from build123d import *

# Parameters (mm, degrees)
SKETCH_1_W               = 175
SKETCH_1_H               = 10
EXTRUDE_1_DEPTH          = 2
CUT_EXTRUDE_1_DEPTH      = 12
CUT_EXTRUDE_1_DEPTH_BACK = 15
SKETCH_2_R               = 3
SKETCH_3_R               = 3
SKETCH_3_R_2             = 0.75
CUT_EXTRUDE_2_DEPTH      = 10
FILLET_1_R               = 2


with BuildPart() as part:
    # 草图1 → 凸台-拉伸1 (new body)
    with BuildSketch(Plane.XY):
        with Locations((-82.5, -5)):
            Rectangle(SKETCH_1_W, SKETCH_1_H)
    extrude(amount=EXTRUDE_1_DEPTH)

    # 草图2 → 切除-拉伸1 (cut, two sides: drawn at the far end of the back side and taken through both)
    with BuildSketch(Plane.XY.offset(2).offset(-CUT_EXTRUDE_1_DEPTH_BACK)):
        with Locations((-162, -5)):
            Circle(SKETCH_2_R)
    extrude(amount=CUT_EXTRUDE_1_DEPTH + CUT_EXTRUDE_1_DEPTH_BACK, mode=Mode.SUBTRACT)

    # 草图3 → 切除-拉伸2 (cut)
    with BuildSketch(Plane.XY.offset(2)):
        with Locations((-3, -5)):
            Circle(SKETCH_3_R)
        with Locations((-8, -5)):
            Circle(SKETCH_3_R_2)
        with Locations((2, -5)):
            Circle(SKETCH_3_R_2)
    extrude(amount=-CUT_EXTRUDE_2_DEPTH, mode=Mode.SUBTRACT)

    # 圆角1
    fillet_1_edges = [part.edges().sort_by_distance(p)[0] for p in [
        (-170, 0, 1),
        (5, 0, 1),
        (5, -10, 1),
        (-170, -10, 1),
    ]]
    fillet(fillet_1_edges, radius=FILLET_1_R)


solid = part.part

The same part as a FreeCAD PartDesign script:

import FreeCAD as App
import Part
import Sketcher
from FreeCAD import Vector


def edges_at(feature, points):
    """Names of the edges that pass closest to the given points."""
    edges = feature.Shape.Edges
    near = lambda p: min(range(len(edges)), key=lambda i: edges[i].distToShape(Part.Vertex(*p))[0])
    return sorted({f"Edge{near(p) + 1}" for p in points})


def add_polygon(sketch, points):
    """Adds a closed chain of lines whose ends are joined by coincident constraints."""
    first, n = sketch.GeometryCount, len(points)
    for a, b in zip(points, points[1:] + points[:1]):
        sketch.addGeometry(Part.LineSegment(App.Vector(*a, 0), App.Vector(*b, 0)), False)
    for i in range(n):
        sketch.addConstraint(Sketcher.Constraint("Coincident", first + i, 2, first + (i + 1) % n, 1))

doc = App.newDocument("Part")
body = doc.addObject("PartDesign::Body", "Body")

# Sketch on XY plane
sketch1 = body.newObject("Sketcher::SketchObject", "Sketch")
sketch1.AttachmentSupport = (doc.getObject("XY_Plane"), [""])
sketch1.MapMode = "FlatFace"
add_polygon(sketch1, [(-170, 0), (-170, -10), (5, -10), (5, 0)])  # lines 0-3
sketch1.addConstraint([
    Sketcher.Constraint("Vertical", 0),
    Sketcher.Constraint("Horizontal", 1),
    Sketcher.Constraint("Vertical", 2),
    Sketcher.Constraint("Horizontal", 3),
    Sketcher.Constraint("PointOnObject", 2, 2, -1),
    Sketcher.Constraint("DistanceX", 1, 1, 1, 2, 175.0),
    Sketcher.Constraint("DistanceY", 0, 2, 0, 1, 10.0),
    Sketcher.Constraint("DistanceX", 0, 2, -1, 1, 170.0),
])
pad1 = body.newObject("PartDesign::Pad", "Pad")
pad1.Profile = sketch1
pad1.Length = 2

# Sketch on XY plane
sketch2 = body.newObject("Sketcher::SketchObject", "Sketch001")
sketch2.AttachmentSupport = (doc.getObject("XY_Plane"), [""])
sketch2.MapMode = "FlatFace"
sketch2.AttachmentOffset = App.Placement(Vector(0, 0, 2), App.Rotation())
sketch2.addGeometry(Part.Circle(Vector(-162, -5, 0), Vector(0, 0, 1), 3), False)
sketch2.addConstraint([
    Sketcher.Constraint("Diameter", 0, 6.0),
    Sketcher.Constraint("DistanceX", 0, 3, -1, 1, 162.0),
    Sketcher.Constraint("DistanceY", 0, 3, -1, 1, 5.0),
])
pocket1 = body.newObject("PartDesign::Pocket", "Pocket")
pocket1.Profile = sketch2
pocket1.Type = "ThroughAll"
pocket1.Midplane = True

# Sketch on XY plane
sketch3 = body.newObject("Sketcher::SketchObject", "Sketch002")
sketch3.AttachmentSupport = (doc.getObject("XY_Plane"), [""])
sketch3.MapMode = "FlatFace"
sketch3.AttachmentOffset = App.Placement(Vector(0, 0, 2), App.Rotation())
sketch3.addGeometry([
    Part.Circle(Vector(-3, -5, 0), Vector(0, 0, 1), 3),
    Part.Circle(Vector(-8, -5, 0), Vector(0, 0, 1), 0.8),
    Part.Circle(Vector(2, -5, 0), Vector(0, 0, 1), 0.8),
], False)
sketch3.addConstraint([
    Sketcher.Constraint("Equal", 1, 2),
    Sketcher.Constraint("Horizontal", 0, 3, 1, 3),
    Sketcher.Constraint("Horizontal", 1, 3, 2, 3),
    Sketcher.Constraint("Diameter", 0, 6.0),
    Sketcher.Constraint("Diameter", 1, 1.5),
    Sketcher.Constraint("DistanceX", 0, 3, -1, 1, 3.0),
    Sketcher.Constraint("DistanceY", 0, 3, -1, 1, 5.0),
    Sketcher.Constraint("DistanceX", 1, 3, -1, 1, 8.0),
    Sketcher.Constraint("DistanceX", -1, 1, 2, 3, 2.0),
])
pocket2 = body.newObject("PartDesign::Pocket", "Pocket001")
pocket2.Profile = sketch3
pocket2.Length = 10
doc.recompute()

fillet = body.newObject("PartDesign::Fillet", "Fillet")
fillet.Base = (pocket2, edges_at(pocket2, [
    (-170, 0, 1),
    (5, 0, 1),
    (5, -10, 1),
    (-170, -10, 1),
]))
fillet.Radius = 2

doc.recompute()
